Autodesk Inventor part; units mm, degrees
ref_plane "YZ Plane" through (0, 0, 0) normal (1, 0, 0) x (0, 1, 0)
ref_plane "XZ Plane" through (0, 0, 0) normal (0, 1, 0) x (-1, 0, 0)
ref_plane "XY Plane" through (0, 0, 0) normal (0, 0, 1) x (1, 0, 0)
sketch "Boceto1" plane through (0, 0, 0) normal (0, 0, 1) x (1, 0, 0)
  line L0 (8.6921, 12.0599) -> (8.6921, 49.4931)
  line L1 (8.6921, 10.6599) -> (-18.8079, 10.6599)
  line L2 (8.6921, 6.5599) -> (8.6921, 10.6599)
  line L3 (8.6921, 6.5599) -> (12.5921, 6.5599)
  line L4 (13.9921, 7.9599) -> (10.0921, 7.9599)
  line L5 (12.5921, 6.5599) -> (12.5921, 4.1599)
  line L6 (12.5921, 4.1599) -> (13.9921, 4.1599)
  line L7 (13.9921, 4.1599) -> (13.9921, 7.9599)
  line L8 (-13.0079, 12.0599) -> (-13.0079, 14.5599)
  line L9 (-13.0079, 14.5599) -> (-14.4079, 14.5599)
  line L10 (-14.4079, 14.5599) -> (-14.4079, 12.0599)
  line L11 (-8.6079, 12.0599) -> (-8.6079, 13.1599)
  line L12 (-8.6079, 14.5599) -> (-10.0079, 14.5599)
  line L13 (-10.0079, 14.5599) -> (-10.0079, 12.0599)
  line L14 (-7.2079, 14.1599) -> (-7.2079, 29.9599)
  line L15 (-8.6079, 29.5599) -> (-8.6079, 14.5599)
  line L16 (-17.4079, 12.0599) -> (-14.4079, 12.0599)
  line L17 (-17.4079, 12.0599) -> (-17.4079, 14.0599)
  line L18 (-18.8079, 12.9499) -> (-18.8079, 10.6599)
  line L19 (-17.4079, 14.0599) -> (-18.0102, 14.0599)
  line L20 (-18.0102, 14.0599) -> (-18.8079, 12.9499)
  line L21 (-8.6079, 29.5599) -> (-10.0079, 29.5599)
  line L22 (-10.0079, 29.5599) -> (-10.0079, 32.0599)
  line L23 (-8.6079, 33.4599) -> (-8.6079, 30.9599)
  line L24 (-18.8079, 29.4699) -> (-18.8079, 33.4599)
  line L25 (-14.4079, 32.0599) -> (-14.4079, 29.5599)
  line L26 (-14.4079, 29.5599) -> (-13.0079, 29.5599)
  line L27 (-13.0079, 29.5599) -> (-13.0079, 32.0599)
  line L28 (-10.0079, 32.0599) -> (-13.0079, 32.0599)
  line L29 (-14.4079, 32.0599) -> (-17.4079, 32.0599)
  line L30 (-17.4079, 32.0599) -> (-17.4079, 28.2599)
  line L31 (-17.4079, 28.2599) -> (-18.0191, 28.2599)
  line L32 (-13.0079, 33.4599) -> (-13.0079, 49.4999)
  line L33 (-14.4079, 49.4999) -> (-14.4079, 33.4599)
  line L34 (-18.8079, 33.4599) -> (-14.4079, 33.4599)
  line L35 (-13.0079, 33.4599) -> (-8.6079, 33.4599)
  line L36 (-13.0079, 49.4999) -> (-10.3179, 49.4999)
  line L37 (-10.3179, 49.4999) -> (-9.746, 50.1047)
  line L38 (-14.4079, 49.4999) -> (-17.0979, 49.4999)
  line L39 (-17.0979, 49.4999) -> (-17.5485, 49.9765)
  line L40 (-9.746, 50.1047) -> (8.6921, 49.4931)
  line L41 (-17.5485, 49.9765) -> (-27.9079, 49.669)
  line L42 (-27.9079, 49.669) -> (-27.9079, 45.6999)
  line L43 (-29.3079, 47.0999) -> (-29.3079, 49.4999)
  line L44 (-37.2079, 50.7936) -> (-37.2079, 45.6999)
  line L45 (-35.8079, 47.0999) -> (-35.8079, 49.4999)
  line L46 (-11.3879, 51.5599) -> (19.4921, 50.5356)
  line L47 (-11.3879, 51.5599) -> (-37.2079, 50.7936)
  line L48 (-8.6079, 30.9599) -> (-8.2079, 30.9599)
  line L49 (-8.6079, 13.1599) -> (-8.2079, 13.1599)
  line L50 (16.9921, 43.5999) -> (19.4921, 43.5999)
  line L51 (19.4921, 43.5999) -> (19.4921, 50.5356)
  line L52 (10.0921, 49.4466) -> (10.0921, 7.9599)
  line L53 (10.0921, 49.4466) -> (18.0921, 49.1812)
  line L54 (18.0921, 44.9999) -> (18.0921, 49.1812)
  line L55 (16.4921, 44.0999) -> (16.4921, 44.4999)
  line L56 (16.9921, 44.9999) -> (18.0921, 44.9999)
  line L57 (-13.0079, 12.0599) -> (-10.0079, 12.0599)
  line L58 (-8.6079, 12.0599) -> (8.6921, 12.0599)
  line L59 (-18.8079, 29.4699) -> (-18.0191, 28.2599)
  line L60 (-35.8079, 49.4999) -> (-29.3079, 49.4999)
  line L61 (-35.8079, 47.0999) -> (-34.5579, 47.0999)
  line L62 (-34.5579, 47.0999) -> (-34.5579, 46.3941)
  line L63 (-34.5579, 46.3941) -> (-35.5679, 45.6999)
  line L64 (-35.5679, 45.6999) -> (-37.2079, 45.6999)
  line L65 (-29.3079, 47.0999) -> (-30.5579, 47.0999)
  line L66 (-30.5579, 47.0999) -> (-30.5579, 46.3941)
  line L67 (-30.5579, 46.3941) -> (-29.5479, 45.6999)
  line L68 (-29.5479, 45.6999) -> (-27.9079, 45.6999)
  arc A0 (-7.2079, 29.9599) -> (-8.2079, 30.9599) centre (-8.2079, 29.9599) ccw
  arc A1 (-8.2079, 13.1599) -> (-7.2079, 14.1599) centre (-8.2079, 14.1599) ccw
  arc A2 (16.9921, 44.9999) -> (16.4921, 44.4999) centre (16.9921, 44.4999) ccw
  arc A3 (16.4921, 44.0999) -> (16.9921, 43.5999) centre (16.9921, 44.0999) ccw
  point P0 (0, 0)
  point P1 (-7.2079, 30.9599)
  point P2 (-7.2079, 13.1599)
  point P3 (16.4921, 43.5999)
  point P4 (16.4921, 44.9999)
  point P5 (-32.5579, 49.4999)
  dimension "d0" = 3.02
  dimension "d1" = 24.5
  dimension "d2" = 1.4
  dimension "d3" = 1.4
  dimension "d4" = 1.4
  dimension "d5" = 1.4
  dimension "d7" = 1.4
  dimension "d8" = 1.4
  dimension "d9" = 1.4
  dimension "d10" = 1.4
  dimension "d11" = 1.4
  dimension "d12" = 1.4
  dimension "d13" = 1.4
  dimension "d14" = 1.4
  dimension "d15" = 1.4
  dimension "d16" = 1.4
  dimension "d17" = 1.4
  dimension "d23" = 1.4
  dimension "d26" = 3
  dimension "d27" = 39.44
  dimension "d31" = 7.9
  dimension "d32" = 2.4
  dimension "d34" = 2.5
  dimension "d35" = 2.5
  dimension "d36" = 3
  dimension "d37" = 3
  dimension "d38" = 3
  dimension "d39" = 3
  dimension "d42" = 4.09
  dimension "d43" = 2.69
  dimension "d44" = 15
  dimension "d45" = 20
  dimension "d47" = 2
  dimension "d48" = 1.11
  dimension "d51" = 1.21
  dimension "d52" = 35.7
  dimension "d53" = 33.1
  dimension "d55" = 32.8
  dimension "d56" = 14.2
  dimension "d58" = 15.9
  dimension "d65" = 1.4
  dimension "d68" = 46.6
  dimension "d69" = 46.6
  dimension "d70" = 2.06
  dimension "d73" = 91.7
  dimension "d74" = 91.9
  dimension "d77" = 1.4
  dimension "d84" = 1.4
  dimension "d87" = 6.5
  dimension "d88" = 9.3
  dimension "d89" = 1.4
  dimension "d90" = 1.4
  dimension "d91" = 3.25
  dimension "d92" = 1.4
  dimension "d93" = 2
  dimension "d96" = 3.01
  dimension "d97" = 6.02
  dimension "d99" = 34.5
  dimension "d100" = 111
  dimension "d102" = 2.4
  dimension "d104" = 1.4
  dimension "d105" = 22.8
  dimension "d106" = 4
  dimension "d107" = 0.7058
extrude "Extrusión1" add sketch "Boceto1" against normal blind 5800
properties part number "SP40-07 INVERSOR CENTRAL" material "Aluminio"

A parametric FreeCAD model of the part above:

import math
import FreeCAD as App
import Part
import Sketcher

V = App.Vector
Q = App.Units.Quantity

doc = App.newDocument("Part")
params = doc.addObject("Spreadsheet::Sheet", "Params")
for row, (alias, value) in enumerate([
    ("sketch1_radius", "1 mm"),
    ("sketch1_width", "3 mm"),
    ("sketch1_height", "15 mm"),
    ("sketch1_height2", "2 mm"),
    ("sketch1_width2", "1.4 mm"),
    ("pad1_length", "5800 mm"),
], start=1):
    params.set(f"A{row}", alias)
    params.set(f"B{row}", "=" + value)
    params.setAlias(f"B{row}", alias)

body = doc.addObject("PartDesign::Body", "Body")

sketch1 = body.newObject("Sketcher::SketchObject", "Sketch")
sketch1.AttachmentSupport = (doc.getObject("XY_Plane"), [""])
sketch1.MapMode = "FlatFace"
sketch1.addGeometry(Part.LineSegment(V(-18.81, 10.66, 0), V(8.69, 10.66, 0)), False)
sketch1.addGeometry(Part.LineSegment(V(8.69, 10.66, 0), V(8.69, 6.56, 0)), False)
sketch1.addGeometry(Part.LineSegment(V(8.69, 6.56, 0), V(12.59, 6.56, 0)), False)
sketch1.addGeometry(Part.LineSegment(V(12.59, 6.56, 0), V(12.59, 4.16, 0)), False)
sketch1.addGeometry(Part.LineSegment(V(12.59, 4.16, 0), V(13.99, 4.16, 0)), False)
sketch1.addGeometry(Part.LineSegment(V(13.99, 4.16, 0), V(13.99, 7.96, 0)), False)
sketch1.addGeometry(Part.LineSegment(V(13.99, 7.96, 0), V(10.09, 7.96, 0)), False)
sketch1.addGeometry(Part.LineSegment(V(10.09, 7.96, 0), V(10.09, 49.45, 0)), False)
sketch1.addGeometry(Part.LineSegment(V(10.09, 49.45, 0), V(18.09, 49.18, 0)), False)
sketch1.addGeometry(Part.LineSegment(V(18.09, 49.18, 0), V(18.09, 45, 0)), False)
sketch1.addGeometry(Part.LineSegment(V(18.09, 45, 0), V(16.99, 45, 0)), False)
sketch1.addGeometry(Part.ArcOfCircle(Part.Circle(V(16.99, 44.5, 0), V(0, 0, 1), 0.5), math.radians(90), math.radians(180)), False)
sketch1.addGeometry(Part.LineSegment(V(16.49, 44.5, 0), V(16.49, 44.1, 0)), False)
sketch1.addGeometry(Part.ArcOfCircle(Part.Circle(V(16.99, 44.1, 0), V(0, 0, 1), 0.5), math.radians(180), math.radians(270)), False)
sketch1.addGeometry(Part.LineSegment(V(16.99, 43.6, 0), V(19.49, 43.6, 0)), False)
sketch1.addGeometry(Part.LineSegment(V(19.49, 43.6, 0), V(19.49, 50.54, 0)), False)
sketch1.addGeometry(Part.LineSegment(V(19.49, 50.54, 0), V(-11.39, 51.56, 0)), False)
sketch1.addGeometry(Part.LineSegment(V(-11.39, 51.56, 0), V(-37.21, 50.79, 0)), False)
sketch1.addGeometry(Part.LineSegment(V(-37.21, 50.79, 0), V(-37.21, 45.7, 0)), False)
sketch1.addGeometry(Part.LineSegment(V(-37.21, 45.7, 0), V(-35.57, 45.7, 0)), False)
sketch1.addGeometry(Part.LineSegment(V(-35.57, 45.7, 0), V(-34.56, 46.39, 0)), False)
sketch1.addGeometry(Part.LineSegment(V(-34.56, 46.39, 0), V(-34.56, 47.1, 0)), False)
sketch1.addGeometry(Part.LineSegment(V(-34.56, 47.1, 0), V(-35.81, 47.1, 0)), False)
sketch1.addGeometry(Part.LineSegment(V(-35.81, 47.1, 0), V(-35.81, 49.5, 0)), False)
sketch1.addGeometry(Part.LineSegment(V(-35.81, 49.5, 0), V(-29.31, 49.5, 0)), False)
sketch1.addGeometry(Part.LineSegment(V(-29.31, 49.5, 0), V(-29.31, 47.1, 0)), False)
sketch1.addGeometry(Part.LineSegment(V(-29.31, 47.1, 0), V(-30.56, 47.1, 0)), False)
sketch1.addGeometry(Part.LineSegment(V(-30.56, 47.1, 0), V(-30.56, 46.39, 0)), False)
sketch1.addGeometry(Part.LineSegment(V(-30.56, 46.39, 0), V(-29.55, 45.7, 0)), False)
sketch1.addGeometry(Part.LineSegment(V(-29.55, 45.7, 0), V(-27.91, 45.7, 0)), False)
sketch1.addGeometry(Part.LineSegment(V(-27.91, 45.7, 0), V(-27.91, 49.67, 0)), False)
sketch1.addGeometry(Part.LineSegment(V(-27.91, 49.67, 0), V(-17.55, 49.98, 0)), False)
sketch1.addGeometry(Part.LineSegment(V(-17.55, 49.98, 0), V(-17.1, 49.5, 0)), False)
sketch1.addGeometry(Part.LineSegment(V(-17.1, 49.5, 0), V(-14.41, 49.5, 0)), False)
sketch1.addGeometry(Part.LineSegment(V(-14.41, 49.5, 0), V(-14.41, 33.46, 0)), False)
sketch1.addGeometry(Part.LineSegment(V(-14.41, 33.46, 0), V(-18.81, 33.46, 0)), False)
sketch1.addGeometry(Part.LineSegment(V(-18.81, 33.46, 0), V(-18.81, 29.47, 0)), False)
sketch1.addGeometry(Part.LineSegment(V(-18.81, 29.47, 0), V(-18.02, 28.26, 0)), False)
sketch1.addGeometry(Part.LineSegment(V(-18.02, 28.26, 0), V(-17.41, 28.26, 0)), False)
sketch1.addGeometry(Part.LineSegment(V(-17.41, 28.26, 0), V(-17.41, 32.06, 0)), False)
sketch1.addGeometry(Part.LineSegment(V(-17.41, 32.06, 0), V(-14.41, 32.06, 0)), False)
sketch1.addGeometry(Part.LineSegment(V(-14.41, 32.06, 0), V(-14.41, 29.56, 0)), False)
sketch1.addGeometry(Part.LineSegment(V(-14.41, 29.56, 0), V(-13.01, 29.56, 0)), False)
sketch1.addGeometry(Part.LineSegment(V(-13.01, 29.56, 0), V(-13.01, 32.06, 0)), False)
sketch1.addGeometry(Part.LineSegment(V(-13.01, 32.06, 0), V(-10.01, 32.06, 0)), False)
sketch1.addGeometry(Part.LineSegment(V(-10.01, 32.06, 0), V(-10.01, 29.56, 0)), False)
sketch1.addGeometry(Part.LineSegment(V(-10.01, 29.56, 0), V(-8.61, 29.56, 0)), False)
sketch1.addGeometry(Part.LineSegment(V(-8.61, 29.56, 0), V(-8.61, 14.56, 0)), False)
sketch1.addGeometry(Part.LineSegment(V(-8.61, 14.56, 0), V(-10.01, 14.56, 0)), False)
sketch1.addGeometry(Part.LineSegment(V(-10.01, 14.56, 0), V(-10.01, 12.06, 0)), False)
sketch1.addGeometry(Part.LineSegment(V(-10.01, 12.06, 0), V(-13.01, 12.06, 0)), False)
sketch1.addGeometry(Part.LineSegment(V(-13.01, 12.06, 0), V(-13.01, 14.56, 0)), False)
sketch1.addGeometry(Part.LineSegment(V(-13.01, 14.56, 0), V(-14.41, 14.56, 0)), False)
sketch1.addGeometry(Part.LineSegment(V(-14.41, 14.56, 0), V(-14.41, 12.06, 0)), False)
sketch1.addGeometry(Part.LineSegment(V(-14.41, 12.06, 0), V(-17.41, 12.06, 0)), False)
sketch1.addGeometry(Part.LineSegment(V(-17.41, 12.06, 0), V(-17.41, 14.06, 0)), False)
sketch1.addGeometry(Part.LineSegment(V(-17.41, 14.06, 0), V(-18.01, 14.06, 0)), False)
sketch1.addGeometry(Part.LineSegment(V(-18.01, 14.06, 0), V(-18.81, 12.95, 0)), False)
sketch1.addGeometry(Part.LineSegment(V(-18.81, 12.95, 0), V(-18.81, 10.66, 0)), False)
sketch1.addGeometry(Part.LineSegment(V(8.69, 49.49, 0), V(8.69, 12.06, 0)), False)
sketch1.addGeometry(Part.LineSegment(V(8.69, 12.06, 0), V(-8.61, 12.06, 0)), False)
sketch1.addGeometry(Part.LineSegment(V(-8.61, 12.06, 0), V(-8.61, 13.16, 0)), False)
sketch1.addGeometry(Part.LineSegment(V(-8.61, 13.16, 0), V(-8.21, 13.16, 0)), False)
sketch1.addGeometry(Part.ArcOfCircle(Part.Circle(V(-8.21, 14.16, 0), V(0, 0, 1), 1), math.radians(-90), math.radians(0)), False)
sketch1.addGeometry(Part.LineSegment(V(-7.21, 14.16, 0), V(-7.21, 29.96, 0)), False)
sketch1.addGeometry(Part.ArcOfCircle(Part.Circle(V(-8.21, 29.96, 0), V(0, 0, 1), 1), math.radians(0), math.radians(90)), False)
sketch1.addGeometry(Part.LineSegment(V(-8.21, 30.96, 0), V(-8.61, 30.96, 0)), False)
sketch1.addGeometry(Part.LineSegment(V(-8.61, 30.96, 0), V(-8.61, 33.46, 0)), False)
sketch1.addGeometry(Part.LineSegment(V(-8.61, 33.46, 0), V(-13.01, 33.46, 0)), False)
sketch1.addGeometry(Part.LineSegment(V(-13.01, 33.46, 0), V(-13.01, 49.5, 0)), False)
sketch1.addGeometry(Part.LineSegment(V(-13.01, 49.5, 0), V(-10.32, 49.5, 0)), False)
sketch1.addGeometry(Part.LineSegment(V(-10.32, 49.5, 0), V(-9.75, 50.1, 0)), False)
sketch1.addGeometry(Part.LineSegment(V(-9.75, 50.1, 0), V(8.69, 49.49, 0)), False)
sketch1.addConstraint(Sketcher.Constraint("Coincident", 0, 2, 1, 1))
sketch1.addConstraint(Sketcher.Constraint("Coincident", 1, 2, 2, 1))
sketch1.addConstraint(Sketcher.Constraint("Coincident", 2, 2, 3, 1))
sketch1.addConstraint(Sketcher.Constraint("Coincident", 3, 2, 4, 1))
sketch1.addConstraint(Sketcher.Constraint("Coincident", 4, 2, 5, 1))
sketch1.addConstraint(Sketcher.Constraint("Coincident", 5, 2, 6, 1))
sketch1.addConstraint(Sketcher.Constraint("Coincident", 6, 2, 7, 1))
sketch1.addConstraint(Sketcher.Constraint("Coincident", 7, 2, 8, 1))
sketch1.addConstraint(Sketcher.Constraint("Coincident", 8, 2, 9, 1))
sketch1.addConstraint(Sketcher.Constraint("Coincident", 9, 2, 10, 1))
sketch1.addConstraint(Sketcher.Constraint("Tangent", 10, 2, 11, 1))
sketch1.addConstraint(Sketcher.Constraint("Tangent", 11, 2, 12, 1))
sketch1.addConstraint(Sketcher.Constraint("Tangent", 12, 2, 13, 1))
sketch1.addConstraint(Sketcher.Constraint("Tangent", 13, 2, 14, 1))
sketch1.addConstraint(Sketcher.Constraint("Coincident", 14, 2, 15, 1))
sketch1.addConstraint(Sketcher.Constraint("Coincident", 15, 2, 16, 1))
sketch1.addConstraint(Sketcher.Constraint("Coincident", 16, 2, 17, 1))
sketch1.addConstraint(Sketcher.Constraint("Coincident", 17, 2, 18, 1))
sketch1.addConstraint(Sketcher.Constraint("Coincident", 18, 2, 19, 1))
sketch1.addConstraint(Sketcher.Constraint("Coincident", 19, 2, 20, 1))
sketch1.addConstraint(Sketcher.Constraint("Coincident", 20, 2, 21, 1))
sketch1.addConstraint(Sketcher.Constraint("Coincident", 21, 2, 22, 1))
sketch1.addConstraint(Sketcher.Constraint("Coincident", 22, 2, 23, 1))
sketch1.addConstraint(Sketcher.Constraint("Coincident", 23, 2, 24, 1))
sketch1.addConstraint(Sketcher.Constraint("Coincident", 24, 2, 25, 1))
sketch1.addConstraint(Sketcher.Constraint("Coincident", 25, 2, 26, 1))
sketch1.addConstraint(Sketcher.Constraint("Coincident", 26, 2, 27, 1))
sketch1.addConstraint(Sketcher.Constraint("Coincident", 27, 2, 28, 1))
sketch1.addConstraint(Sketcher.Constraint("Coincident", 28, 2, 29, 1))
sketch1.addConstraint(Sketcher.Constraint("Coincident", 29, 2, 30, 1))
sketch1.addConstraint(Sketcher.Constraint("Coincident", 30, 2, 31, 1))
sketch1.addConstraint(Sketcher.Constraint("Coincident", 31, 2, 32, 1))
sketch1.addConstraint(Sketcher.Constraint("Coincident", 32, 2, 33, 1))
sketch1.addConstraint(Sketcher.Constraint("Coincident", 33, 2, 34, 1))
sketch1.addConstraint(Sketcher.Constraint("Coincident", 34, 2, 35, 1))
sketch1.addConstraint(Sketcher.Constraint("Coincident", 35, 2, 36, 1))
sketch1.addConstraint(Sketcher.Constraint("Coincident", 36, 2, 37, 1))
sketch1.addConstraint(Sketcher.Constraint("Coincident", 37, 2, 38, 1))
sketch1.addConstraint(Sketcher.Constraint("Coincident", 38, 2, 39, 1))
sketch1.addConstraint(Sketcher.Constraint("Coincident", 39, 2, 40, 1))
sketch1.addConstraint(Sketcher.Constraint("Coincident", 40, 2, 41, 1))
sketch1.addConstraint(Sketcher.Constraint("Coincident", 41, 2, 42, 1))
sketch1.addConstraint(Sketcher.Constraint("Coincident", 42, 2, 43, 1))
sketch1.addConstraint(Sketcher.Constraint("Coincident", 43, 2, 44, 1))
sketch1.addConstraint(Sketcher.Constraint("Coincident", 44, 2, 45, 1))
sketch1.addConstraint(Sketcher.Constraint("Coincident", 45, 2, 46, 1))
sketch1.addConstraint(Sketcher.Constraint("Coincident", 46, 2, 47, 1))
sketch1.addConstraint(Sketcher.Constraint("Coincident", 47, 2, 48, 1))
sketch1.addConstraint(Sketcher.Constraint("Coincident", 48, 2, 49, 1))
sketch1.addConstraint(Sketcher.Constraint("Coincident", 49, 2, 50, 1))
sketch1.addConstraint(Sketcher.Constraint("Coincident", 50, 2, 51, 1))
sketch1.addConstraint(Sketcher.Constraint("Coincident", 51, 2, 52, 1))
sketch1.addConstraint(Sketcher.Constraint("Coincident", 52, 2, 53, 1))
sketch1.addConstraint(Sketcher.Constraint("Coincident", 53, 2, 54, 1))
sketch1.addConstraint(Sketcher.Constraint("Coincident", 54, 2, 55, 1))
sketch1.addConstraint(Sketcher.Constraint("Coincident", 55, 2, 56, 1))
sketch1.addConstraint(Sketcher.Constraint("Coincident", 56, 2, 57, 1))
sketch1.addConstraint(Sketcher.Constraint("Coincident", 57, 2, 58, 1))
sketch1.addConstraint(Sketcher.Constraint("Coincident", 58, 2, 0, 1))
sketch1.addConstraint(Sketcher.Constraint("Coincident", 59, 2, 60, 1))
sketch1.addConstraint(Sketcher.Constraint("Coincident", 60, 2, 61, 1))
sketch1.addConstraint(Sketcher.Constraint("Coincident", 61, 2, 62, 1))
sketch1.addConstraint(Sketcher.Constraint("Tangent", 62, 2, 63, 1))
sketch1.addConstraint(Sketcher.Constraint("Tangent", 63, 2, 64, 1))
sketch1.addConstraint(Sketcher.Constraint("Tangent", 64, 2, 65, 1))
sketch1.addConstraint(Sketcher.Constraint("Tangent", 65, 2, 66, 1))
sketch1.addConstraint(Sketcher.Constraint("Coincident", 66, 2, 67, 1))
sketch1.addConstraint(Sketcher.Constraint("Coincident", 67, 2, 68, 1))
sketch1.addConstraint(Sketcher.Constraint("Coincident", 68, 2, 69, 1))
sketch1.addConstraint(Sketcher.Constraint("Coincident", 69, 2, 70, 1))
sketch1.addConstraint(Sketcher.Constraint("Coincident", 70, 2, 71, 1))
sketch1.addConstraint(Sketcher.Constraint("Coincident", 71, 2, 72, 1))
sketch1.addConstraint(Sketcher.Constraint("Coincident", 72, 2, 59, 1))
sketch1.addConstraint(Sketcher.Constraint("Horizontal", 0))
sketch1.addConstraint(Sketcher.Constraint("Vertical", 1))
sketch1.addConstraint(Sketcher.Constraint("Horizontal", 2))
sketch1.addConstraint(Sketcher.Constraint("Vertical", 3))
sketch1.addConstraint(Sketcher.Constraint("Horizontal", 4))
sketch1.addConstraint(Sketcher.Constraint("Vertical", 5))
sketch1.addConstraint(Sketcher.Constraint("Horizontal", 6))
sketch1.addConstraint(Sketcher.Constraint("Vertical", 7))
sketch1.addConstraint(Sketcher.Constraint("Vertical", 9))
sketch1.addConstraint(Sketcher.Constraint("Horizontal", 10))
sketch1.addConstraint(Sketcher.Constraint("Vertical", 12))
sketch1.addConstraint(Sketcher.Constraint("Horizontal", 14))
sketch1.addConstraint(Sketcher.Constraint("Vertical", 15))
sketch1.addConstraint(Sketcher.Constraint("Vertical", 18))
sketch1.addConstraint(Sketcher.Constraint("Horizontal", 19))
sketch1.addConstraint(Sketcher.Constraint("Vertical", 21))
sketch1.addConstraint(Sketcher.Constraint("Horizontal", 22))
sketch1.addConstraint(Sketcher.Constraint("Vertical", 23))
sketch1.addConstraint(Sketcher.Constraint("Horizontal", 24))
sketch1.addConstraint(Sketcher.Constraint("Vertical", 25))
sketch1.addConstraint(Sketcher.Constraint("Horizontal", 26))
sketch1.addConstraint(Sketcher.Constraint("Vertical", 27))
sketch1.addConstraint(Sketcher.Constraint("Horizontal", 29))
sketch1.addConstraint(Sketcher.Constraint("Vertical", 30))
sketch1.addConstraint(Sketcher.Constraint("Horizontal", 33))
sketch1.addConstraint(Sketcher.Constraint("Vertical", 34))
sketch1.addConstraint(Sketcher.Constraint("Horizontal", 35))
sketch1.addConstraint(Sketcher.Constraint("Vertical", 36))
sketch1.addConstraint(Sketcher.Constraint("Horizontal", 38))
sketch1.addConstraint(Sketcher.Constraint("Vertical", 39))
sketch1.addConstraint(Sketcher.Constraint("Horizontal", 40))
sketch1.addConstraint(Sketcher.Constraint("Vertical", 41))
sketch1.addConstraint(Sketcher.Constraint("Horizontal", 42))
sketch1.addConstraint(Sketcher.Constraint("Vertical", 43))
sketch1.addConstraint(Sketcher.Constraint("Horizontal", 44))
sketch1.addConstraint(Sketcher.Constraint("Vertical", 45))
sketch1.addConstraint(Sketcher.Constraint("Horizontal", 46))
sketch1.addConstraint(Sketcher.Constraint("Vertical", 47))
sketch1.addConstraint(Sketcher.Constraint("Horizontal", 48))
sketch1.addConstraint(Sketcher.Constraint("Vertical", 49))
sketch1.addConstraint(Sketcher.Constraint("Horizontal", 50))
sketch1.addConstraint(Sketcher.Constraint("Vertical", 51))
sketch1.addConstraint(Sketcher.Constraint("Horizontal", 52))
sketch1.addConstraint(Sketcher.Constraint("Vertical", 53))
sketch1.addConstraint(Sketcher.Constraint("Horizontal", 54))
sketch1.addConstraint(Sketcher.Constraint("Vertical", 55))
sketch1.addConstraint(Sketcher.Constraint("Horizontal", 56))
sketch1.addConstraint(Sketcher.Constraint("Vertical", 58))
sketch1.addConstraint(Sketcher.Constraint("Vertical", 59))
sketch1.addConstraint(Sketcher.Constraint("Horizontal", 60))
sketch1.addConstraint(Sketcher.Constraint("Vertical", 61))
sketch1.addConstraint(Sketcher.Constraint("Horizontal", 62))
sketch1.addConstraint(Sketcher.Constraint("Vertical", 64))
sketch1.addConstraint(Sketcher.Constraint("Horizontal", 66))
sketch1.addConstraint(Sketcher.Constraint("Vertical", 67))
sketch1.addConstraint(Sketcher.Constraint("Horizontal", 68))
sketch1.addConstraint(Sketcher.Constraint("Vertical", 69))
sketch1.addConstraint(Sketcher.Constraint("Horizontal", 70))
sketch1.addConstraint(Sketcher.Constraint("Equal", 11, 13))
sketch1.addConstraint(Sketcher.Constraint("Equal", 63, 65))
sketch1.addConstraint(Sketcher.Constraint("Parallel", 8, 16))
sketch1.addConstraint(Sketcher.Constraint("Parallel", 17, 31))
sketch1.addConstraint(Sketcher.Constraint("Parallel", 16, 72))
sketch1.addConstraint(Sketcher.Constraint("Horizontal", 22, 2, 25, 2))
sketch1.addConstraint(Sketcher.Constraint("Horizontal", 20, 2, 27, 2))
sketch1.addConstraint(Sketcher.Constraint("Horizontal", 19, 2, 28, 2))
sketch1.addConstraint(Sketcher.Constraint("Horizontal", 24, 2, 32, 2))
sketch1.addConstraint(Sketcher.Constraint("Horizontal", 40, 2, 43, 2))
sketch1.addConstraint(Sketcher.Constraint("Horizontal", 42, 2, 45, 2))
sketch1.addConstraint(Sketcher.Constraint("Horizontal", 48, 2, 51, 2))
sketch1.addConstraint(Sketcher.Constraint("Horizontal", 50, 2, 53, 2))
sketch1.addConstraint(Sketcher.Constraint("Horizontal", 54, 2, 59, 2))
sketch1.addConstraint(Sketcher.Constraint("Horizontal", 35, 2, 67, 2))
sketch1.addConstraint(Sketcher.Constraint("Horizontal", 33, 2, 69, 2))
sketch1.addConstraint(Sketcher.Constraint("Vertical", 34, 2, 40, 2))
sketch1.addConstraint(Sketcher.Constraint("Vertical", 45, 2, 48, 2))
sketch1.addConstraint(Sketcher.Constraint("Vertical", 43, 2, 50, 2))
sketch1.addConstraint(Sketcher.Constraint("Vertical", 41, 2, 52, 2))
sketch1.addConstraint(Sketcher.Constraint("Vertical", 39, 2, 54, 2))
sketch1.addConstraint(Sketcher.Constraint("Vertical", 36, 2, 57, 2))
sketch1.addConstraint(Sketcher.Constraint("Vertical", 1, 2, 59, 2))
sketch1.addConstraint(Sketcher.Constraint("Vertical", 47, 2, 60, 2))
sketch1.addConstraint(Sketcher.Constraint("Vertical", 61, 2, 66, 2))
sketch1.addConstraint(Sketcher.Constraint("Vertical", 51, 2, 68, 2))
sketch1.addConstraint(Sketcher.Constraint("Equal", 2, 6))
sketch1.addConstraint(Sketcher.Constraint("Equal", 22, 26))
sketch1.addConstraint(Sketcher.Constraint("Equal", 19, 29))
sketch1.addConstraint(Sketcher.Constraint("Equal", 4, 42))
sketch1.addConstraint(Sketcher.Constraint("Equal", 40, 44))
sketch1.addConstraint(Sketcher.Constraint("Equal", 42, 46))
sketch1.addConstraint(Sketcher.Constraint("Equal", 35, 68))
sketch1.addConstraint(Sketcher.Constraint("Equal", 33, 70))
sketch1.addConstraint(Sketcher.Constraint("Equal", 66, 12))
sketch1.addConstraint(Sketcher.Constraint("Equal", 3, 23))
sketch1.addConstraint(Sketcher.Constraint("Equal", 5, 39))
sketch1.addConstraint(Sketcher.Constraint("Equal", 14, 41))
sketch1.addConstraint(Sketcher.Constraint("Equal", 45, 49))
sketch1.addConstraint(Sketcher.Constraint("Equal", 10, 61))
sketch1.addConstraint(Sketcher.Constraint("Equal", 53, 67))
sketch1.addConstraint(Sketcher.Constraint("Equal", 20, 28))
sketch1.addConstraint(Sketcher.Constraint("Radius", 63, Q("1 mm")))
sketch1.addConstraint(Sketcher.Constraint("DistanceX", 40, 1, 40, 2, Q("3 mm")))
sketch1.addConstraint(Sketcher.Constraint("DistanceY", 47, 2, 47, 1, Q("15 mm")))
sketch1.addConstraint(Sketcher.Constraint("DistanceY", 55, 1, 55, 2, Q("2 mm")))
sketch1.addConstraint(Sketcher.Constraint("DistanceX", 4, 1, 4, 2, Q("1.4 mm")))
sketch1.addConstraint(Sketcher.Constraint("DistanceX", 14, 1, 14, 2, Q("2.5 mm")))
sketch1.addConstraint(Sketcher.Constraint("DistanceX", 24, 1, 24, 2, Q("6.5 mm")))
sketch1.addConstraint(Sketcher.Constraint("DistanceY", 3, 2, 3, 1, Q("2.4 mm")))
sketch1.addConstraint(Sketcher.Constraint("DistanceX", 33, 1, 33, 2, Q("2.69 mm")))
sketch1.addConstraint(Sketcher.Constraint("Radius", 11, Q("0.5 mm")))
sketch1.addConstraint(Sketcher.Constraint("DistanceX", 0, 1, 0, 2, Q("27.5 mm")))
sketch1.addConstraint(Sketcher.Constraint("DistanceX", 2, 1, 2, 2, Q("3.9 mm")))
sketch1.addConstraint(Sketcher.Constraint("DistanceX", 10, 2, 10, 1, Q("1.1 mm")))
sketch1.addConstraint(Sketcher.Constraint("DistanceX", 62, 1, 62, 2, Q("0.4 mm")))
sketch1.addConstraint(Sketcher.Constraint("DistanceY", 1, 2, 1, 1, Q("4.1 mm")))
sketch1.addConstraint(Sketcher.Constraint("DistanceY", 5, 1, 5, 2, Q("3.8 mm")))
sketch1.addConstraint(Sketcher.Constraint("DistanceY", 21, 1, 21, 2, Q("0.7058 mm")))
sketch1.addConstraint(Sketcher.Constraint("DistanceY", 64, 1, 64, 2, Q("15.8 mm")))
sketch1.addConstraint(Sketcher.Constraint("DistanceY", -1, 1, 9, 2, Q("45 mm")))
sketch1.addConstraint(Sketcher.Constraint("Angle", 8, Q("-1.9 deg")))
sketch1.addConstraint(Sketcher.Constraint("Angle", 17, Q("-178.3 deg")))
sketch1.addConstraint(Sketcher.Constraint("Angle", 37, Q("-56.8996 deg")))
sketch1.addConstraint(Sketcher.Constraint("DistanceX", 19, 1, 19, 2, Q("1.64 mm")))
sketch1.addConstraint(Sketcher.Constraint("DistanceX", 22, 2, 22, 1, Q("1.25 mm")))
sketch1.addConstraint(Sketcher.Constraint("DistanceY", 34, 2, 34, 1, Q("16.04 mm")))
sketch1.addConstraint(Sketcher.Constraint("DistanceY", 36, 2, 36, 1, Q("3.99 mm")))
sketch1.addConstraint(Sketcher.Constraint("DistanceY", 58, 2, 58, 1, Q("2.29 mm")))
sketch1.addConstraint(Sketcher.Constraint("DistanceY", -1, 1, 18, 2, Q("45.7 mm")))
sketch1.addConstraint(Sketcher.Constraint("DistanceY", -1, 1, 21, 2, Q("47.1 mm")))
sketch1.addConstraint(Sketcher.Constraint("DistanceY", 30, 1, 30, 2, Q("3.969 mm")))
sketch1.addConstraint(Sketcher.Constraint("DistanceY", -1, 1, 0, 2, Q("10.66 mm")))
sketch1.addConstraint(Sketcher.Constraint("DistanceY", -1, 1, 16, 2, Q("51.56 mm")))
sketch1.addConstraint(Sketcher.Constraint("Distance", 16, Q("30.897 mm")))
sketch1.addConstraint(Sketcher.Constraint("Distance", 31, Q("10.364 mm")))
sketch1.addConstraint(Sketcher.Constraint("Distance", 32, Q("0.656 mm")))
sketch1.addConstraint(Sketcher.Constraint("Distance", 57, Q("1.367 mm")))
sketch1.addConstraint(Sketcher.Constraint("DistanceY", 7, 1, 7, 2, Q("41.4867 mm")))
sketch1.addConstraint(Sketcher.Constraint("DistanceY", 9, 2, 9, 1, Q("4.1813 mm")))
sketch1.addConstraint(Sketcher.Constraint("DistanceY", 18, 2, 18, 1, Q("5.0937 mm")))
sketch1.addConstraint(Sketcher.Constraint("DistanceY", 59, 2, 59, 1, Q("37.4332 mm")))
sketch1.addConstraint(Sketcher.Constraint("DistanceX", -1, 1, 11, 3, Q("16.992 mm")))
sketch1.addConstraint(Sketcher.Constraint("DistanceX", 71, 2, -1, 1, Q("9.746 mm")))
sketch1.setExpression("Constraints[173]", "Params.sketch1_radius")
sketch1.setExpression("Constraints[174]", "Params.sketch1_width")
sketch1.setExpression("Constraints[175]", "Params.sketch1_height")
sketch1.setExpression("Constraints[176]", "Params.sketch1_height2")
sketch1.setExpression("Constraints[177]", "Params.sketch1_width2")
pad1 = body.newObject("PartDesign::Pad", "Pad")
pad1.Profile = sketch1
pad1.setExpression("Length", "Params.pad1_length")
pad1.Reversed = True

doc.recompute()
